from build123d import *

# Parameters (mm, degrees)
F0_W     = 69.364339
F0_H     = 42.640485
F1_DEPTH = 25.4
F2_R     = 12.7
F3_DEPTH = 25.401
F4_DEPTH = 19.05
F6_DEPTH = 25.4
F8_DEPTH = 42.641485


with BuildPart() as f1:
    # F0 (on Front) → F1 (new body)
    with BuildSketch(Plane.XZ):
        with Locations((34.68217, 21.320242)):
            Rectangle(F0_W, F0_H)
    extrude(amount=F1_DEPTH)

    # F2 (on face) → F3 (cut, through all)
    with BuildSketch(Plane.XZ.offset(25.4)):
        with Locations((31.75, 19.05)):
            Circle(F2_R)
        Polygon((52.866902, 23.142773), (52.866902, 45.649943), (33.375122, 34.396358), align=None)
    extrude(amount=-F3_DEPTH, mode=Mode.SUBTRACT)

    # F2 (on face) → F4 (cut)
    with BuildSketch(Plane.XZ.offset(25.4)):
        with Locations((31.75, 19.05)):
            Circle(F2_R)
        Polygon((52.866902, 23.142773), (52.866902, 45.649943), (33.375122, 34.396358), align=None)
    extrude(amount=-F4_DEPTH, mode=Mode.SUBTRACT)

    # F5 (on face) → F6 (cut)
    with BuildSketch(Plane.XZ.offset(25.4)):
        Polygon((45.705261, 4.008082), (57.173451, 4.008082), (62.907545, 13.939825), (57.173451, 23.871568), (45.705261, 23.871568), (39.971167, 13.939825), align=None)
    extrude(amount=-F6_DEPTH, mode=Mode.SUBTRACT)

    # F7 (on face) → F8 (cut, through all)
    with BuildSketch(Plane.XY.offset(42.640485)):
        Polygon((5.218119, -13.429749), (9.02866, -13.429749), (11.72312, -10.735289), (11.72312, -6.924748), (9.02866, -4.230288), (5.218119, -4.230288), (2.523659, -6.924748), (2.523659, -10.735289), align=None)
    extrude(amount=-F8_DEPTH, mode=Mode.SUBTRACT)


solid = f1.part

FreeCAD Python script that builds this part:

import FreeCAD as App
import Part
import Sketcher
Q = App.Units.Quantity


def add_polygon(sketch, points):
    """Adds a closed chain of lines whose ends are joined by coincident constraints."""
    first, n = sketch.GeometryCount, len(points)
    for a, b in zip(points, points[1:] + points[:1]):
        sketch.addGeometry(Part.LineSegment(App.Vector(*a, 0), App.Vector(*b, 0)), False)
    for i in range(n):
        sketch.addConstraint(Sketcher.Constraint("Coincident", first + i, 2, first + (i + 1) % n, 1))

doc = App.newDocument("Part")
body = doc.addObject("PartDesign::Body", "Body")

# Sketch on XZ plane
sketch1 = body.newObject("Sketcher::SketchObject", "Sketch")
sketch1.AttachmentSupport = (doc.getObject("XZ_Plane"), [""])
sketch1.MapMode = "FlatFace"
add_polygon(sketch1, [(0, 42.640484), (0, 0), (69.364339, 0), (69.364339, 42.640484)])  # lines 0-3
sketch1.addConstraint([
    Sketcher.Constraint("Vertical", 0),
    Sketcher.Constraint("Horizontal", 1),
    Sketcher.Constraint("Vertical", 2),
    Sketcher.Constraint("Horizontal", 3),
    Sketcher.Constraint("Coincident", 0, 2, -1, 1),
    Sketcher.Constraint("DistanceX", 1, 1, 1, 2, 69.364339),
    Sketcher.Constraint("DistanceY", 0, 2, 0, 1, 42.640485),
])
pad1 = body.newObject("PartDesign::Pad", "Pad")
pad1.Profile = sketch1
pad1.Length = Q("1 in")

# Sketch on XZ plane
sketch2 = body.newObject("Sketcher::SketchObject", "Sketch001")
sketch2.AttachmentSupport = (doc.getObject("XZ_Plane"), [""])
sketch2.MapMode = "FlatFace"
sketch2.AttachmentOffset = App.Placement(App.Vector(0, 0, 1 * 25.4), App.Rotation())
sketch2.addGeometry(Part.Circle(App.Vector(31.75, 19.05, 0), App.Vector(0, 0, 1), 12.7), False)  # 0
add_polygon(sketch2, [(52.866902, 23.142773), (52.866902, 45.649943), (33.375122, 34.396358)])  # lines 1-3
sketch2.addConstraint([
    Sketcher.Constraint("Vertical", 1),
    Sketcher.Constraint("Equal", 2, 3),
    Sketcher.Constraint("Diameter", 0, Q("1 in")),
    Sketcher.Constraint("Angle", 2, Q("-149.999999 deg")),
    Sketcher.Constraint("DistanceX", -1, 1, 0, 3, Q("1.25 in")),
    Sketcher.Constraint("DistanceY", -1, 1, 0, 3, Q("0.75 in")),
    Sketcher.Constraint("DistanceY", 1, 1, 1, 2, 22.50717),
    Sketcher.Constraint("DistanceX", -1, 1, 2, 2, 33.375122),
    Sketcher.Constraint("DistanceY", -1, 1, 1, 2, 45.649943),
])
pocket1 = body.newObject("PartDesign::Pocket", "Pocket")
pocket1.Profile = sketch2
pocket1.Type = "ThroughAll"

# Sketch on XZ plane
sketch3 = body.newObject("Sketcher::SketchObject", "Sketch002")
sketch3.AttachmentSupport = (doc.getObject("XZ_Plane"), [""])
sketch3.MapMode = "FlatFace"
sketch3.AttachmentOffset = App.Placement(App.Vector(0, 0, 1 * 25.4), App.Rotation())
sketch3.addGeometry(Part.Circle(App.Vector(31.75, 19.05, 0), App.Vector(0, 0, 1), 12.7), False)  # 0
add_polygon(sketch3, [(52.866902, 23.142773), (52.866902, 45.649943), (33.375122, 34.396358)])  # lines 1-3
sketch3.addConstraint([
    Sketcher.Constraint("Vertical", 1),
    Sketcher.Constraint("Equal", 2, 3),
    Sketcher.Constraint("Diameter", 0, Q("1 in")),
    Sketcher.Constraint("Angle", 2, Q("-149.999999 deg")),
    Sketcher.Constraint("DistanceX", -1, 1, 0, 3, Q("1.25 in")),
    Sketcher.Constraint("DistanceY", -1, 1, 0, 3, Q("0.75 in")),
    Sketcher.Constraint("DistanceY", 1, 1, 1, 2, 22.50717),
    Sketcher.Constraint("DistanceX", -1, 1, 2, 2, 33.375122),
    Sketcher.Constraint("DistanceY", -1, 1, 1, 2, 45.649943),
])
pocket2 = body.newObject("PartDesign::Pocket", "Pocket001")
pocket2.Profile = sketch3
pocket2.Length = Q("0.75 in")

# Sketch on XZ plane
sketch4 = body.newObject("Sketcher::SketchObject", "Sketch003")
sketch4.AttachmentSupport = (doc.getObject("XZ_Plane"), [""])
sketch4.MapMode = "FlatFace"
sketch4.AttachmentOffset = App.Placement(App.Vector(0, 0, 1 * 25.4), App.Rotation())
add_polygon(sketch4, [(45.705261, 4.008082), (57.173451, 4.008082), (62.907545, 13.939825), (57.173451, 23.871568), (45.705261, 23.871568), (39.971167, 13.939825)])  # lines 0-5
sketch4.addConstraint([
    Sketcher.Constraint("Horizontal", 0),
    Sketcher.Constraint("Horizontal", 3),
    Sketcher.Constraint("Parallel", 1, 4),
    Sketcher.Constraint("Parallel", 2, 5),
    Sketcher.Constraint("Horizontal", 1, 2, 4, 2),
    Sketcher.Constraint("Vertical", 0, 2, 2, 2),
    Sketcher.Constraint("Vertical", 3, 2, 5, 2),
    Sketcher.Constraint("Angle", 1, Q("60.000002 deg")),
    Sketcher.Constraint("DistanceX", 0, 1, 0, 2, 11.46819),
    Sketcher.Constraint("Distance", 1, 11.468189),
    Sketcher.Constraint("DistanceX", -1, 1, 0, 2, 57.173451),
    Sketcher.Constraint("DistanceY", -1, 1, 2, 2, 23.871568),
])
pocket3 = body.newObject("PartDesign::Pocket", "Pocket002")
pocket3.Profile = sketch4
pocket3.Length = Q("1 in")

# Sketch on XY plane
sketch5 = body.newObject("Sketcher::SketchObject", "Sketch004")
sketch5.AttachmentSupport = (doc.getObject("XY_Plane"), [""])
sketch5.MapMode = "FlatFace"
sketch5.AttachmentOffset = App.Placement(App.Vector(0, 0, 42.640485), App.Rotation())
add_polygon(sketch5, [(5.218119, -13.429749), (9.02866, -13.429749), (11.72312, -10.735289), (11.72312, -6.924748), (9.02866, -4.230288), (5.218119, -4.230288), (2.523659, -6.924748), (2.523659, -10.735289)])  # lines 0-7
sketch5.addConstraint([
    Sketcher.Constraint("Horizontal", 0),
    Sketcher.Constraint("Vertical", 2),
    Sketcher.Constraint("Horizontal", 4),
    Sketcher.Constraint("Vertical", 6),
    Sketcher.Constraint("Perpendicular", 1, 3),
    Sketcher.Constraint("Perpendicular", 3, 5),
    Sketcher.Constraint("Perpendicular", 5, 7),
    Sketcher.Constraint("Horizontal", 2, 2, 5, 2),
    Sketcher.Constraint("Horizontal", 1, 2, 6, 2),
    Sketcher.Constraint("Vertical", 0, 2, 3, 2),
    Sketcher.Constraint("Vertical", 4, 2, 7, 2),
    Sketcher.Constraint("Equal", 4, 2),
    Sketcher.Constraint("DistanceX", 0, 1, 0, 2, 3.810541),
    Sketcher.Constraint("DistanceY", 0, 2, 2, 2, 6.505001),
    Sketcher.Constraint("DistanceX", -1, 1, 0, 2, 9.02866),
    Sketcher.Constraint("DistanceY", 0, 2, -1, 1, 13.429749),
])
pocket4 = body.newObject("PartDesign::Pocket", "Pocket003")
pocket4.Profile = sketch5
pocket4.Type = "ThroughAll"

doc.recompute()
